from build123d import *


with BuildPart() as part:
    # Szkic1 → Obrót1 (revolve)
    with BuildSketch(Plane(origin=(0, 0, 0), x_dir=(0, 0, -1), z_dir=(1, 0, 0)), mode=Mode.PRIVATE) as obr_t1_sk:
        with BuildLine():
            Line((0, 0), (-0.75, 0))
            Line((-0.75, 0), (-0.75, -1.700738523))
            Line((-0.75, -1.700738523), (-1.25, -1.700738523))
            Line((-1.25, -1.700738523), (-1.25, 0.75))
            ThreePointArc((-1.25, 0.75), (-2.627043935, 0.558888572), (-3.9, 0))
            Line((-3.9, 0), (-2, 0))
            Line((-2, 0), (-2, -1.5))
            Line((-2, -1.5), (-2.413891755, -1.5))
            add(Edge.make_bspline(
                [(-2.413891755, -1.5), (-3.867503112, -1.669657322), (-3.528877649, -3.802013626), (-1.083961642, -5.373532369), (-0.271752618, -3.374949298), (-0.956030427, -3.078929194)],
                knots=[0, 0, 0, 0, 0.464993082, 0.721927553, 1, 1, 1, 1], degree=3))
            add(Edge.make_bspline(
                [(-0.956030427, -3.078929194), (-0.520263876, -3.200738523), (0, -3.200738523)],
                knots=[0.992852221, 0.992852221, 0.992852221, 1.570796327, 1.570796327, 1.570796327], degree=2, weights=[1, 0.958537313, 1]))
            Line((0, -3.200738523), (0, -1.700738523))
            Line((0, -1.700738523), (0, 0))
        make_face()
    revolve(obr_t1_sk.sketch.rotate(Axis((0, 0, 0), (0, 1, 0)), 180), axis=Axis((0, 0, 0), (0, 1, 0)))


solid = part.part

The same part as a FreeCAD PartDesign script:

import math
import FreeCAD as App
import Part
import Sketcher

doc = App.newDocument("Part")
body = doc.addObject("PartDesign::Body", "Body")

sketch1 = body.newObject("Sketcher::SketchObject", "Sketch")
sketch1.AttachmentSupport = (doc.getObject("YZ_Plane"), [""])
sketch1.MapMode = "FlatFace"
sketch1.addGeometry(Part.LineSegment(App.Vector(0, 0, 0), App.Vector(0, 0.75, 0)), False)
sketch1.addGeometry(Part.LineSegment(App.Vector(0, 0.75, 0), App.Vector(-1.700739, 0.75, 0)), False)
sketch1.addGeometry(Part.LineSegment(App.Vector(-1.700739, 0.75, 0), App.Vector(-1.700739, 1.25, 0)), False)
sketch1.addGeometry(Part.LineSegment(App.Vector(-1.700739, 1.25, 0), App.Vector(0.75, 1.25, 0)), False)
sketch1.addGeometry(Part.ArcOfCircle(Part.Circle(App.Vector(-4.306667, 1.25, 0), App.Vector(0, 0, 1), 5.056667), math.radians(0), math.radians(31.605028)), False)
sketch1.addGeometry(Part.LineSegment(App.Vector(0, 3.9, 0), App.Vector(0, 2, 0)), False)
sketch1.addGeometry(Part.LineSegment(App.Vector(0, 2, 0), App.Vector(-1.5, 2, 0)), False)
sketch1.addGeometry(Part.LineSegment(App.Vector(-1.5, 2, 0), App.Vector(-1.5, 2.413892, 0)), False)
sketch1.addGeometry(Part.BSplineCurve([App.Vector(-1.5, 2.413892, 0), App.Vector(-1.669657, 3.867503, 0), App.Vector(-3.802014, 3.528878, 0), App.Vector(-5.373532, 1.083962, 0), App.Vector(-3.374949, 0.271753, 0), App.Vector(-3.078929, 0.95603, 0)], [4, 1, 1, 4], [0, 0.464993082, 0.721927553, 1], False, 3, [1, 1, 1, 1, 1, 1], False), False)
sketch1.addGeometry(Part.BSplineCurve([App.Vector(-3.078929, 0.95603, 0), App.Vector(-3.200739, 0.520264, 0), App.Vector(-3.200739, 0, 0)], [3, 3], [0.992852221, 1.570796327], False, 2, [1, 0.958537313, 1], False), False)
sketch1.addGeometry(Part.LineSegment(App.Vector(-3.200739, 0, 0), App.Vector(0, 0, 0)), False)
sketch1.addConstraint(Sketcher.Constraint("Block", 8))
sketch1.addConstraint(Sketcher.Constraint("Block", 9))
sketch1.addConstraint(Sketcher.Constraint("Coincident", 0, 2, 1, 1))
sketch1.addConstraint(Sketcher.Constraint("Coincident", 1, 2, 2, 1))
sketch1.addConstraint(Sketcher.Constraint("Coincident", 2, 2, 3, 1))
sketch1.addConstraint(Sketcher.Constraint("Coincident", 3, 2, 4, 1))
sketch1.addConstraint(Sketcher.Constraint("Coincident", 4, 2, 5, 1))
sketch1.addConstraint(Sketcher.Constraint("Coincident", 5, 2, 6, 1))
sketch1.addConstraint(Sketcher.Constraint("Coincident", 6, 2, 7, 1))
sketch1.addConstraint(Sketcher.Constraint("Coincident", 7, 2, 8, 1))
sketch1.addConstraint(Sketcher.Constraint("Coincident", 9, 2, 10, 1))
sketch1.addConstraint(Sketcher.Constraint("Coincident", 10, 2, 0, 1))
sketch1.addConstraint(Sketcher.Constraint("Vertical", 0))
sketch1.addConstraint(Sketcher.Constraint("Horizontal", 1))
sketch1.addConstraint(Sketcher.Constraint("Vertical", 2))
sketch1.addConstraint(Sketcher.Constraint("Horizontal", 3))
sketch1.addConstraint(Sketcher.Constraint("Vertical", 5))
sketch1.addConstraint(Sketcher.Constraint("Horizontal", 6))
sketch1.addConstraint(Sketcher.Constraint("Vertical", 7))
sketch1.addConstraint(Sketcher.Constraint("Horizontal", 10))
sketch1.addConstraint(Sketcher.Constraint("PointOnObject", 0, 2, -2))
sketch1.addConstraint(Sketcher.Constraint("PointOnObject", 4, 2, -2))
sketch1.addConstraint(Sketcher.Constraint("Horizontal", 4, 3, 2, 2))
sketch1.addConstraint(Sketcher.Constraint("DistanceY", 2, 1, 2, 2, 0.5))
sketch1.addConstraint(Sketcher.Constraint("DistanceY", 5, 2, 5, 1, 1.9))
sketch1.addConstraint(Sketcher.Constraint("DistanceY", -1, 1, 5, 2, 2.0))
sketch1.addConstraint(Sketcher.Constraint("DistanceY", 0, 1, 0, 2, 0.75))
sketch1.addConstraint(Sketcher.Constraint("DistanceX", -1, 1, 3, 2, 0.75))
sketch1.addConstraint(Sketcher.Constraint("DistanceX", 1, 2, 1, 1, 1.700739))
revolution = body.newObject("PartDesign::Revolution", "Revolution")
revolution.Profile = sketch1
revolution.ReferenceAxis = (sketch1, ["H_Axis"])
revolution.Angle = 360

doc.recompute()
